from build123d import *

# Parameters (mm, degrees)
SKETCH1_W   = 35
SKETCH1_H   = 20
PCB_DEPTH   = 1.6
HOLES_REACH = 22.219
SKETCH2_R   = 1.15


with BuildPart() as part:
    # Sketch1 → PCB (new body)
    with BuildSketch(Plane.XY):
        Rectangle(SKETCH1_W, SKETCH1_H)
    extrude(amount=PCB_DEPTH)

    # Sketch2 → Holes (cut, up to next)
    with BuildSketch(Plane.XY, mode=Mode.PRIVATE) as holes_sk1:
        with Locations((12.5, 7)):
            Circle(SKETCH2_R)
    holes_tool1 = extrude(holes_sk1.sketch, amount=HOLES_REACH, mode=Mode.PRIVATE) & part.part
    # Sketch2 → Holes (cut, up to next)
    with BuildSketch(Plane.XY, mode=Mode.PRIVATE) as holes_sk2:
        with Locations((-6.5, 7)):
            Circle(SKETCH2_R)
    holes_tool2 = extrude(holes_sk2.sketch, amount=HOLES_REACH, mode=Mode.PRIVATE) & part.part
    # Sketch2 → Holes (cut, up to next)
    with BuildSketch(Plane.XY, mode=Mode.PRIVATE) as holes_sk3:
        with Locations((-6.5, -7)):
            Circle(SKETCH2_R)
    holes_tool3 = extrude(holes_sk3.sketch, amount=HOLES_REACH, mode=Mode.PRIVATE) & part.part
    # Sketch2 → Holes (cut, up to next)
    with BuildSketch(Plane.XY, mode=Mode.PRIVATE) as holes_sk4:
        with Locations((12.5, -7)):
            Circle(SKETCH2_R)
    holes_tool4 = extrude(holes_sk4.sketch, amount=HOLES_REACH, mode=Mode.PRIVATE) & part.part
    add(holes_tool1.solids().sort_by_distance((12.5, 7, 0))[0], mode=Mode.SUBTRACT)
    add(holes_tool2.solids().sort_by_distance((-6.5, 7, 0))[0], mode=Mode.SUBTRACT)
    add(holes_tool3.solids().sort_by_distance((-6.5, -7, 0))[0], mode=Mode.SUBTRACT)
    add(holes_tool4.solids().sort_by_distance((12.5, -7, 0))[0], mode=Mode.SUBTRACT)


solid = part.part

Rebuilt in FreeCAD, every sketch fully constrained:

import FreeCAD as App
import Part
import Sketcher
from FreeCAD import Vector
Q = App.Units.Quantity


def add_polygon(sketch, points):
    """Adds a closed chain of lines whose ends are joined by coincident constraints."""
    first, n = sketch.GeometryCount, len(points)
    for a, b in zip(points, points[1:] + points[:1]):
        sketch.addGeometry(Part.LineSegment(App.Vector(*a, 0), App.Vector(*b, 0)), False)
    for i in range(n):
        sketch.addConstraint(Sketcher.Constraint("Coincident", first + i, 2, first + (i + 1) % n, 1))

doc = App.newDocument("Part")
body = doc.addObject("PartDesign::Body", "Body")

sketch1 = body.newObject("Sketcher::SketchObject", "Sketch")
sketch1.AttachmentSupport = (doc.getObject("XY_Plane"), [""])
sketch1.MapMode = "FlatFace"
add_polygon(sketch1, [(-18, 10), (-18, -10), (18, -10), (18, 10)])
sketch1.addConstraint(Sketcher.Constraint("Vertical", 0))
sketch1.addConstraint(Sketcher.Constraint("Horizontal", 1))
sketch1.addConstraint(Sketcher.Constraint("Vertical", 2))
sketch1.addConstraint(Sketcher.Constraint("Horizontal", 3))
sketch1.addConstraint(Sketcher.Constraint("Symmetric", 0, 2, 2, 2, -1, 1))
sketch1.addConstraint(Sketcher.Constraint("DistanceX", 1, 1, 1, 2, Q("35 mm")))
sketch1.addConstraint(Sketcher.Constraint("DistanceY", 0, 2, 0, 1, Q("20 mm")))
pad1 = body.newObject("PartDesign::Pad", "Pad")
pad1.Profile = sketch1
pad1.Length = 1.6

sketch2 = body.newObject("Sketcher::SketchObject", "Sketch001")
sketch2.AttachmentSupport = (doc.getObject("XY_Plane"), [""])
sketch2.MapMode = "FlatFace"
sketch2.addGeometry(Part.Circle(Vector(12.5, 7, 0), Vector(0, 0, 1), 1.1), False)
sketch2.addConstraint(Sketcher.Constraint("Diameter", 0, Q("2.3 mm")))
sketch2.addConstraint(Sketcher.Constraint("DistanceY", -1, 1, 0, 3, Q("7 mm")))
sketch2.addConstraint(Sketcher.Constraint("DistanceX", -1, 1, 0, 3, Q("12.5 mm")))
pocket1 = body.newObject("PartDesign::Pocket", "Pocket")
pocket1.Profile = sketch2
pocket1.Type = "UpToFirst"
pocket1.Reversed = True

sketch3 = body.newObject("Sketcher::SketchObject", "Sketch002")
sketch3.AttachmentSupport = (doc.getObject("XY_Plane"), [""])
sketch3.MapMode = "FlatFace"
sketch3.addGeometry(Part.Circle(Vector(-6.5, 7, 0), Vector(0, 0, 1), 1.1), False)
sketch3.addConstraint(Sketcher.Constraint("Diameter", 0, Q("2.3 mm")))
sketch3.addConstraint(Sketcher.Constraint("DistanceY", -1, 1, 0, 3, Q("7 mm")))
sketch3.addConstraint(Sketcher.Constraint("DistanceX", 0, 3, -1, 1, Q("6.5 mm")))
pocket2 = body.newObject("PartDesign::Pocket", "Pocket001")
pocket2.Profile = sketch3
pocket2.Type = "UpToFirst"
pocket2.Reversed = True

sketch4 = body.newObject("Sketcher::SketchObject", "Sketch003")
sketch4.AttachmentSupport = (doc.getObject("XY_Plane"), [""])
sketch4.MapMode = "FlatFace"
sketch4.addGeometry(Part.Circle(Vector(-6.5, -7, 0), Vector(0, 0, 1), 1.1), False)
sketch4.addConstraint(Sketcher.Constraint("Diameter", 0, Q("2.3 mm")))
sketch4.addConstraint(Sketcher.Constraint("DistanceY", 0, 3, -1, 1, Q("7 mm")))
sketch4.addConstraint(Sketcher.Constraint("DistanceX", 0, 3, -1, 1, Q("6.5 mm")))
pocket3 = body.newObject("PartDesign::Pocket", "Pocket002")
pocket3.Profile = sketch4
pocket3.Type = "UpToFirst"
pocket3.Reversed = True

sketch5 = body.newObject("Sketcher::SketchObject", "Sketch004")
sketch5.AttachmentSupport = (doc.getObject("XY_Plane"), [""])
sketch5.MapMode = "FlatFace"
sketch5.addGeometry(Part.Circle(Vector(12.5, -7, 0), Vector(0, 0, 1), 1.1), False)
sketch5.addConstraint(Sketcher.Constraint("Diameter", 0, Q("2.3 mm")))
sketch5.addConstraint(Sketcher.Constraint("DistanceY", 0, 3, -1, 1, Q("7 mm")))
sketch5.addConstraint(Sketcher.Constraint("DistanceX", -1, 1, 0, 3, Q("12.5 mm")))
pocket4 = body.newObject("PartDesign::Pocket", "Pocket003")
pocket4.Profile = sketch5
pocket4.Type = "UpToFirst"
pocket4.Reversed = True

doc.recompute()
